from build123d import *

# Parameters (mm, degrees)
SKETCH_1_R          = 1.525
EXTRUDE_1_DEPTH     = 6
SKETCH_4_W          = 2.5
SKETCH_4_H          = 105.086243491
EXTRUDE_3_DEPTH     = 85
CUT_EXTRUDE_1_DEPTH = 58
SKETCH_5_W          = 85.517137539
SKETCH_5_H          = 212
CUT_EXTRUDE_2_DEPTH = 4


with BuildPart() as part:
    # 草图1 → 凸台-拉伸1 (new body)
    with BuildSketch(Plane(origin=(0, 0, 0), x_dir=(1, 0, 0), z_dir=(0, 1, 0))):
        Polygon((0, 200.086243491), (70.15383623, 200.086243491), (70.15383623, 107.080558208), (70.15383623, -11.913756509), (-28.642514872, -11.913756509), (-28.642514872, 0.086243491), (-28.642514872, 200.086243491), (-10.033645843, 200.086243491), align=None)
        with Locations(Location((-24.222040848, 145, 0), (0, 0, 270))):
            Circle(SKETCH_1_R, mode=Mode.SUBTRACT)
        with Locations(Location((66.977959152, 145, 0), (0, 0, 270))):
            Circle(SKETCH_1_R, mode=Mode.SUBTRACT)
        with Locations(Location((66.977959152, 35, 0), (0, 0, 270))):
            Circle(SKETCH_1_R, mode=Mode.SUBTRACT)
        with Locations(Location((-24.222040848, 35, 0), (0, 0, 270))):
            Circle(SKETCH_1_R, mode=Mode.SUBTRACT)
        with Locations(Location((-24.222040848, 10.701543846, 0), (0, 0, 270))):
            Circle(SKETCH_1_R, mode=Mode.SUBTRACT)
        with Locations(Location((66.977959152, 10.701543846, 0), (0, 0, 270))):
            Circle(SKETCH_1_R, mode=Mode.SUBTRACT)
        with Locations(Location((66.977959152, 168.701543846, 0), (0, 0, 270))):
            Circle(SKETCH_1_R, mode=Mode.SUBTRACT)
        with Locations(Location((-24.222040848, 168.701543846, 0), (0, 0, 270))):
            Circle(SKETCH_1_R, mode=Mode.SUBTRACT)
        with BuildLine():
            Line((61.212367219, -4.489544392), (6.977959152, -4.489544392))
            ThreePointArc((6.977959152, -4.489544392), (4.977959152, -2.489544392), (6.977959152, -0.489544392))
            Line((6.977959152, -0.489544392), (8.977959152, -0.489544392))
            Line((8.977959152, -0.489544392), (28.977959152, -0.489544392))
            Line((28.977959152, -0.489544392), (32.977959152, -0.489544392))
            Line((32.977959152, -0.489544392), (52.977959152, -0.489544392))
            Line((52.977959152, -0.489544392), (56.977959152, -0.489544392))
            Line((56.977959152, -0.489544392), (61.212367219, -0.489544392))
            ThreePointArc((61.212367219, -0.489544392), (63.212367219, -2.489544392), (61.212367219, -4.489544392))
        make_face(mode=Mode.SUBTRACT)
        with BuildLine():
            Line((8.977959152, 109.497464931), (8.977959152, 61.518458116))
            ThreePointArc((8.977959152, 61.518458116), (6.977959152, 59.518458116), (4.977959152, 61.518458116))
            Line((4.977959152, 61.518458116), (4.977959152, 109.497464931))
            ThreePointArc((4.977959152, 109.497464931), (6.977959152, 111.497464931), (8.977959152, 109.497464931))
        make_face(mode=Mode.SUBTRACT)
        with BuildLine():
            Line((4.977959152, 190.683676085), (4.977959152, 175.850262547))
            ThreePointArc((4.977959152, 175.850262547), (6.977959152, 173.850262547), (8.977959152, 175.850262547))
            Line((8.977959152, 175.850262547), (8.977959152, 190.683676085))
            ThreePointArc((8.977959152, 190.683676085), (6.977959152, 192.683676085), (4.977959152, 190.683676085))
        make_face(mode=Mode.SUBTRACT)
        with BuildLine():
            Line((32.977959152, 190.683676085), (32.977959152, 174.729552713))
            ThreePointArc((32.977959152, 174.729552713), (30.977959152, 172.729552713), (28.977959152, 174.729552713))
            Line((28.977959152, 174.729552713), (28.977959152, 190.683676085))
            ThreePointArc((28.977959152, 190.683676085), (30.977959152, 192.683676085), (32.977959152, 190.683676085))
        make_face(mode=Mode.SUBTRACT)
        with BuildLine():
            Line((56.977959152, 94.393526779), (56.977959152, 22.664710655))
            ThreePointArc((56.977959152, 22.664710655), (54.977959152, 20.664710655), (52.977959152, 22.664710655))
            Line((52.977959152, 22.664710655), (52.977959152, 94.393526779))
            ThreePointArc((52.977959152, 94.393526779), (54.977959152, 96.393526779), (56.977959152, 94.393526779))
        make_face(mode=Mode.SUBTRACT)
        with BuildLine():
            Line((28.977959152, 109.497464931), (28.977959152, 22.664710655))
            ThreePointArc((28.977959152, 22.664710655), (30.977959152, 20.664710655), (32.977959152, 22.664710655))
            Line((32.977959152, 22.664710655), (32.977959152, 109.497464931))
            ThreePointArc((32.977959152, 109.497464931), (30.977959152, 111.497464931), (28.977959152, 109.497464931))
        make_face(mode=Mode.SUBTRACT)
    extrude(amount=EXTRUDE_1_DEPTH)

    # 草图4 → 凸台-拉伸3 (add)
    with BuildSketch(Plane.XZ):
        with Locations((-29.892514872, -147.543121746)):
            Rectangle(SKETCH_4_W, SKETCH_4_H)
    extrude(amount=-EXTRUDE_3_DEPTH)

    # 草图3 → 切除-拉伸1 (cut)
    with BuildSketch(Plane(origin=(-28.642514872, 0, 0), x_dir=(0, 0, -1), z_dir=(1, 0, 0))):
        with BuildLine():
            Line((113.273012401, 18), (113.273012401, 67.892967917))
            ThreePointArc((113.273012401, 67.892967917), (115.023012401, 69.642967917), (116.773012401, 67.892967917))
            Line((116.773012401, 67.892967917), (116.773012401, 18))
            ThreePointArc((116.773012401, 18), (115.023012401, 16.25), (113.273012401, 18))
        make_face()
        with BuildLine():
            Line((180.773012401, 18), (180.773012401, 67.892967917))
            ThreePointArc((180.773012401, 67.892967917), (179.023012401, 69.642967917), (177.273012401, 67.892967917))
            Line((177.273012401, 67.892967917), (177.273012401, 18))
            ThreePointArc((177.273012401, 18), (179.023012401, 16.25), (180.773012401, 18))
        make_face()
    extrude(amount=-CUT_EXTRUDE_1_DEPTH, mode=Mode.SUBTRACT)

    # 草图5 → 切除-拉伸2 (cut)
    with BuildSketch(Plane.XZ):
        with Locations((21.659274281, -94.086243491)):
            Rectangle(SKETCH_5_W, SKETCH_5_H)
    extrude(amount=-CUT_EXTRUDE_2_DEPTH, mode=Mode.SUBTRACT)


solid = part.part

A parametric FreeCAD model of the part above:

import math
import FreeCAD as App
import Part
import Sketcher
from FreeCAD import Vector
Q = App.Units.Quantity

doc = App.newDocument("Part")
body = doc.addObject("PartDesign::Body", "Body")

# Sketch on XZ plane
sketch1 = doc.addObject("Sketcher::SketchObject", "Sketch")
body.addObject(sketch1)
sketch1.AttachmentSupport = (doc.XZ_Plane, [""])
sketch1.MapMode = "FlatFace"
sketch1.addGeometry(Part.LineSegment(Vector(70.2, -200.1, 0), Vector(-28.6, -200.1, 0)), False)
sketch1.addGeometry(Part.LineSegment(Vector(-28.6, -200.1, 0), Vector(-28.6, 11.9, 0)), False)
sketch1.addGeometry(Part.LineSegment(Vector(-28.6, 11.9, 0), Vector(70.2, 11.9, 0)), False)
sketch1.addGeometry(Part.LineSegment(Vector(70.2, 11.9, 0), Vector(70.2, -200.1, 0)), False)
sketch1.addGeometry(Part.Circle(Vector(67, -10.7, 0), Vector(0, 0, 1), 1.5), False)
sketch1.addGeometry(Part.Circle(Vector(67, -35, 0), Vector(0, 0, 1), 1.5), False)
sketch1.addGeometry(Part.LineSegment(Vector(61.2, 4.5, 0), Vector(7, 4.5, 0)), False)
sketch1.addGeometry(Part.ArcOfCircle(Part.Circle(Vector(7, 2.5, 0), Vector(0, 0, 1), 2), math.radians(90), math.radians(270)), False)
sketch1.addGeometry(Part.LineSegment(Vector(7, 0.5, 0), Vector(61.2, 0.5, 0)), False)
sketch1.addGeometry(Part.ArcOfCircle(Part.Circle(Vector(61.2, 2.5, 0), Vector(0, 0, 1), 2), math.radians(-90), math.radians(90)), False)
sketch1.addGeometry(Part.LineSegment(Vector(57, -94.4, 0), Vector(57, -22.7, 0)), False)
sketch1.addGeometry(Part.ArcOfCircle(Part.Circle(Vector(55, -22.7, 0), Vector(0, 0, 1), 2), math.radians(0), math.radians(180)), False)
sketch1.addGeometry(Part.LineSegment(Vector(53, -22.7, 0), Vector(53, -94.4, 0)), False)
sketch1.addGeometry(Part.ArcOfCircle(Part.Circle(Vector(55, -94.4, 0), Vector(0, 0, 1), 2), math.radians(180), math.radians(360)), False)
sketch1.addGeometry(Part.ArcOfCircle(Part.Circle(Vector(31, -109.5, 0), Vector(0, 0, 1), 2), math.radians(180), math.radians(360)), False)
sketch1.addGeometry(Part.LineSegment(Vector(33, -109.5, 0), Vector(33, -22.7, 0)), False)
sketch1.addGeometry(Part.ArcOfCircle(Part.Circle(Vector(31, -22.7, 0), Vector(0, 0, 1), 2), math.radians(0), math.radians(180)), False)
sketch1.addGeometry(Part.LineSegment(Vector(29, -22.7, 0), Vector(29, -109.5, 0)), False)
sketch1.addGeometry(Part.Circle(Vector(-24.2, -10.7, 0), Vector(0, 0, 1), 1.5), False)
sketch1.addGeometry(Part.Circle(Vector(-24.2, -35, 0), Vector(0, 0, 1), 1.5), False)
sketch1.addGeometry(Part.LineSegment(Vector(9, -109.5, 0), Vector(9, -61.5, 0)), False)
sketch1.addGeometry(Part.ArcOfCircle(Part.Circle(Vector(7, -61.5, 0), Vector(0, 0, 1), 2), math.radians(0), math.radians(180)), False)
sketch1.addGeometry(Part.LineSegment(Vector(5, -61.5, 0), Vector(5, -109.5, 0)), False)
sketch1.addGeometry(Part.ArcOfCircle(Part.Circle(Vector(7, -109.5, 0), Vector(0, 0, 1), 2), math.radians(180), math.radians(360)), False)
sketch1.addGeometry(Part.Circle(Vector(67, -145, 0), Vector(0, 0, 1), 1.5), False)
sketch1.addGeometry(Part.Circle(Vector(67, -168.7, 0), Vector(0, 0, 1), 1.5), False)
sketch1.addGeometry(Part.LineSegment(Vector(33, -190.7, 0), Vector(33, -174.7, 0)), False)
sketch1.addGeometry(Part.ArcOfCircle(Part.Circle(Vector(31, -174.7, 0), Vector(0, 0, 1), 2), math.radians(0), math.radians(180)), False)
sketch1.addGeometry(Part.LineSegment(Vector(29, -174.7, 0), Vector(29, -190.7, 0)), False)
sketch1.addGeometry(Part.ArcOfCircle(Part.Circle(Vector(31, -190.7, 0), Vector(0, 0, 1), 2), math.radians(180), math.radians(360)), False)
sketch1.addGeometry(Part.ArcOfCircle(Part.Circle(Vector(7, -190.7, 0), Vector(0, 0, 1), 2), math.radians(180), math.radians(360)), False)
sketch1.addGeometry(Part.LineSegment(Vector(9, -190.7, 0), Vector(9, -175.9, 0)), False)
sketch1.addGeometry(Part.ArcOfCircle(Part.Circle(Vector(7, -175.9, 0), Vector(0, 0, 1), 2), math.radians(0), math.radians(180)), False)
sketch1.addGeometry(Part.LineSegment(Vector(5, -175.9, 0), Vector(5, -190.7, 0)), False)
sketch1.addGeometry(Part.Circle(Vector(-24.2, -145, 0), Vector(0, 0, 1), 1.5), False)
sketch1.addGeometry(Part.Circle(Vector(-24.2, -168.7, 0), Vector(0, 0, 1), 1.5), False)
sketch1.addConstraint(Sketcher.Constraint("Coincident", 0, 2, 1, 1))
sketch1.addConstraint(Sketcher.Constraint("Coincident", 1, 2, 2, 1))
sketch1.addConstraint(Sketcher.Constraint("Coincident", 2, 2, 3, 1))
sketch1.addConstraint(Sketcher.Constraint("Coincident", 3, 2, 0, 1))
sketch1.addConstraint(Sketcher.Constraint("Tangent", 6, 2, 7, 1))
sketch1.addConstraint(Sketcher.Constraint("Tangent", 7, 2, 8, 1))
sketch1.addConstraint(Sketcher.Constraint("Tangent", 8, 2, 9, 1))
sketch1.addConstraint(Sketcher.Constraint("Tangent", 9, 2, 6, 1))
sketch1.addConstraint(Sketcher.Constraint("Tangent", 10, 2, 11, 1))
sketch1.addConstraint(Sketcher.Constraint("Tangent", 11, 2, 12, 1))
sketch1.addConstraint(Sketcher.Constraint("Tangent", 12, 2, 13, 1))
sketch1.addConstraint(Sketcher.Constraint("Tangent", 13, 2, 10, 1))
sketch1.addConstraint(Sketcher.Constraint("Tangent", 14, 2, 15, 1))
sketch1.addConstraint(Sketcher.Constraint("Tangent", 15, 2, 16, 1))
sketch1.addConstraint(Sketcher.Constraint("Tangent", 16, 2, 17, 1))
sketch1.addConstraint(Sketcher.Constraint("Tangent", 17, 2, 14, 1))
sketch1.addConstraint(Sketcher.Constraint("Tangent", 20, 2, 21, 1))
sketch1.addConstraint(Sketcher.Constraint("Tangent", 21, 2, 22, 1))
sketch1.addConstraint(Sketcher.Constraint("Tangent", 22, 2, 23, 1))
sketch1.addConstraint(Sketcher.Constraint("Tangent", 23, 2, 20, 1))
sketch1.addConstraint(Sketcher.Constraint("Tangent", 26, 2, 27, 1))
sketch1.addConstraint(Sketcher.Constraint("Tangent", 27, 2, 28, 1))
sketch1.addConstraint(Sketcher.Constraint("Tangent", 28, 2, 29, 1))
sketch1.addConstraint(Sketcher.Constraint("Tangent", 29, 2, 26, 1))
sketch1.addConstraint(Sketcher.Constraint("Tangent", 30, 2, 31, 1))
sketch1.addConstraint(Sketcher.Constraint("Tangent", 31, 2, 32, 1))
sketch1.addConstraint(Sketcher.Constraint("Tangent", 32, 2, 33, 1))
sketch1.addConstraint(Sketcher.Constraint("Tangent", 33, 2, 30, 1))
sketch1.addConstraint(Sketcher.Constraint("Horizontal", 0))
sketch1.addConstraint(Sketcher.Constraint("Vertical", 1))
sketch1.addConstraint(Sketcher.Constraint("Horizontal", 2))
sketch1.addConstraint(Sketcher.Constraint("Vertical", 3))
sketch1.addConstraint(Sketcher.Constraint("Horizontal", 6))
sketch1.addConstraint(Sketcher.Constraint("Horizontal", 8))
sketch1.addConstraint(Sketcher.Constraint("Vertical", 10))
sketch1.addConstraint(Sketcher.Constraint("Vertical", 12))
sketch1.addConstraint(Sketcher.Constraint("Vertical", 15))
sketch1.addConstraint(Sketcher.Constraint("Vertical", 17))
sketch1.addConstraint(Sketcher.Constraint("Vertical", 20))
sketch1.addConstraint(Sketcher.Constraint("Vertical", 22))
sketch1.addConstraint(Sketcher.Constraint("Vertical", 26))
sketch1.addConstraint(Sketcher.Constraint("Vertical", 28))
sketch1.addConstraint(Sketcher.Constraint("Vertical", 31))
sketch1.addConstraint(Sketcher.Constraint("Vertical", 33))
sketch1.addConstraint(Sketcher.Constraint("Equal", 4, 5))
sketch1.addConstraint(Sketcher.Constraint("Equal", 9, 11))
sketch1.addConstraint(Sketcher.Constraint("Equal", 13, 14))
sketch1.addConstraint(Sketcher.Constraint("Equal", 5, 18))
sketch1.addConstraint(Sketcher.Constraint("Equal", 18, 19))
sketch1.addConstraint(Sketcher.Constraint("Equal", 16, 21))
sketch1.addConstraint(Sketcher.Constraint("Equal", 19, 24))
sketch1.addConstraint(Sketcher.Constraint("Equal", 24, 25))
sketch1.addConstraint(Sketcher.Constraint("Equal", 23, 27))
sketch1.addConstraint(Sketcher.Constraint("Equal", 29, 30))
sketch1.addConstraint(Sketcher.Constraint("Equal", 25, 34))
sketch1.addConstraint(Sketcher.Constraint("Equal", 34, 35))
sketch1.addConstraint(Sketcher.Constraint("Horizontal", 11, 3, 16, 3))
sketch1.addConstraint(Sketcher.Constraint("Horizontal", 4, 3, 18, 3))
sketch1.addConstraint(Sketcher.Constraint("Horizontal", 5, 3, 19, 3))
sketch1.addConstraint(Sketcher.Constraint("Horizontal", 14, 3, 23, 3))
sketch1.addConstraint(Sketcher.Constraint("Horizontal", 29, 3, 30, 3))
sketch1.addConstraint(Sketcher.Constraint("Horizontal", 24, 3, 34, 3))
sketch1.addConstraint(Sketcher.Constraint("Horizontal", 25, 3, 35, 3))
sketch1.addConstraint(Sketcher.Constraint("Vertical", 4, 3, 5, 3))
sketch1.addConstraint(Sketcher.Constraint("Vertical", 18, 3, 19, 3))
sketch1.addConstraint(Sketcher.Constraint("Vertical", 7, 3, 21, 3))
sketch1.addConstraint(Sketcher.Constraint("Vertical", 5, 3, 24, 3))
sketch1.addConstraint(Sketcher.Constraint("Vertical", 24, 3, 25, 3))
sketch1.addConstraint(Sketcher.Constraint("Vertical", 16, 3, 27, 3))
sketch1.addConstraint(Sketcher.Constraint("Vertical", 23, 3, 30, 3))
sketch1.addConstraint(Sketcher.Constraint("Vertical", 19, 3, 34, 3))
sketch1.addConstraint(Sketcher.Constraint("Vertical", 34, 3, 35, 3))
sketch1.addConstraint(Sketcher.Constraint("Radius", 7, Q("2 mm")))
sketch1.addConstraint(Sketcher.Constraint("Diameter", 4, Q("3.05 mm")))
sketch1.addConstraint(Sketcher.Constraint("DistanceY", 1, 1, 1, 2, Q("212 mm")))
sketch1.addConstraint(Sketcher.Constraint("DistanceY", 5, 3, -1, 1, Q("35 mm")))
sketch1.addConstraint(Sketcher.Constraint("DistanceY", 24, 3, -1, 1, Q("145 mm")))
sketch1.addConstraint(Sketcher.Constraint("DistanceX", 7, 3, 4, 3, Q("60 mm")))
sketch1.addConstraint(Sketcher.Constraint("DistanceX", 11, 3, 4, 3, Q("12 mm")))
sketch1.addConstraint(Sketcher.Constraint("DistanceX", 14, 3, 13, 3, Q("24 mm")))
sketch1.addConstraint(Sketcher.Constraint("DistanceX", 18, 3, 7, 3, Q("31.2 mm")))
sketch1.addConstraint(Sketcher.Constraint("DistanceX", 0, 2, 0, 1, Q("98.796351 mm")))
sketch1.addConstraint(Sketcher.Constraint("DistanceX", 6, 2, 6, 1, Q("54.234408 mm")))
sketch1.addConstraint(Sketcher.Constraint("DistanceY", 0, 2, 35, 3, Q("31.3847 mm")))
sketch1.addConstraint(Sketcher.Constraint("DistanceY", 18, 3, 1, 2, Q("22.6153 mm")))
sketch1.addConstraint(Sketcher.Constraint("DistanceY", 10, 1, 10, 2, Q("71.728816 mm")))
sketch1.addConstraint(Sketcher.Constraint("DistanceY", 15, 1, 15, 2, Q("86.832754 mm")))
sketch1.addConstraint(Sketcher.Constraint("DistanceY", 20, 1, 20, 2, Q("47.979007 mm")))
sketch1.addConstraint(Sketcher.Constraint("DistanceY", 26, 1, 26, 2, Q("15.954123 mm")))
sketch1.addConstraint(Sketcher.Constraint("DistanceY", 31, 1, 31, 2, Q("14.833414 mm")))
sketch1.addConstraint(Sketcher.Constraint("DistanceX", -1, 1, 4, 3, Q("66.977959 mm")))
sketch1.addConstraint(Sketcher.Constraint("DistanceY", 11, 3, -1, 1, Q("22.664711 mm")))
sketch1.addConstraint(Sketcher.Constraint("DistanceY", 4, 3, 7, 3, Q("13.191088 mm")))
sketch1.addConstraint(Sketcher.Constraint("DistanceY", 13, 3, 9, 3, Q("96.883071 mm")))
sketch1.addConstraint(Sketcher.Constraint("DistanceY", 27, 3, 25, 3, Q("6.028009 mm")))
sketch1.addConstraint(Sketcher.Constraint("DistanceX", 9, 3, 2, 2, Q("8.941469 mm")))
pad1 = doc.addObject("PartDesign::Pad", "Pad")
body.addObject(pad1)
pad1.Profile = sketch1
pad1.Length = 6
pad1.Reversed = True

# Sketch on XZ plane
sketch2 = doc.addObject("Sketcher::SketchObject", "Sketch001")
body.addObject(sketch2)
sketch2.AttachmentSupport = (doc.XZ_Plane, [""])
sketch2.MapMode = "FlatFace"
sketch2.addGeometry(Part.LineSegment(Vector(-31.1, -95, 0), Vector(-31.1, -200.1, 0)), False)
sketch2.addGeometry(Part.LineSegment(Vector(-31.1, -200.1, 0), Vector(-28.6, -200.1, 0)), False)
sketch2.addGeometry(Part.LineSegment(Vector(-28.6, -200.1, 0), Vector(-28.6, -95, 0)), False)
sketch2.addGeometry(Part.LineSegment(Vector(-28.6, -95, 0), Vector(-31.1, -95, 0)), False)
sketch2.addConstraint(Sketcher.Constraint("Coincident", 0, 2, 1, 1))
sketch2.addConstraint(Sketcher.Constraint("Coincident", 1, 2, 2, 1))
sketch2.addConstraint(Sketcher.Constraint("Coincident", 2, 2, 3, 1))
sketch2.addConstraint(Sketcher.Constraint("Coincident", 3, 2, 0, 1))
sketch2.addConstraint(Sketcher.Constraint("Vertical", 0))
sketch2.addConstraint(Sketcher.Constraint("Horizontal", 1))
sketch2.addConstraint(Sketcher.Constraint("Vertical", 2))
sketch2.addConstraint(Sketcher.Constraint("Horizontal", 3))
sketch2.addConstraint(Sketcher.Constraint("DistanceX", 1, 1, 1, 2, Q("2.5 mm")))
sketch2.addConstraint(Sketcher.Constraint("DistanceY", 2, 2, -1, 1, Q("95 mm")))
sketch2.addConstraint(Sketcher.Constraint("DistanceY", 0, 2, 0, 1, Q("105.086243 mm")))
sketch2.addConstraint(Sketcher.Constraint("DistanceX", 0, 2, -1, 1, Q("31.142515 mm")))
pad2 = doc.addObject("PartDesign::Pad", "Pad001")
body.addObject(pad2)
pad2.Profile = sketch2
pad2.Length = 85
pad2.Reversed = True

# Sketch on YZ plane
sketch3 = doc.addObject("Sketcher::SketchObject", "Sketch002")
body.addObject(sketch3)
sketch3.AttachmentSupport = (doc.YZ_Plane, [""])
sketch3.MapMode = "FlatFace"
sketch3.AttachmentOffset = App.Placement(Vector(0, 0, -28.642515), App.Rotation())
sketch3.addGeometry(Part.LineSegment(Vector(67.9, -113.3, 0), Vector(18, -113.3, 0)), False)
sketch3.addGeometry(Part.ArcOfCircle(Part.Circle(Vector(18, -115, 0), Vector(0, 0, 1), 1.8), math.radians(90), math.radians(270)), False)
sketch3.addGeometry(Part.LineSegment(Vector(18, -116.8, 0), Vector(67.9, -116.8, 0)), False)
sketch3.addGeometry(Part.ArcOfCircle(Part.Circle(Vector(67.9, -115, 0), Vector(0, 0, 1), 1.8), math.radians(-90), math.radians(90)), False)
sketch3.addGeometry(Part.LineSegment(Vector(18, -180.8, 0), Vector(67.9, -180.8, 0)), False)
sketch3.addGeometry(Part.ArcOfCircle(Part.Circle(Vector(67.9, -179, 0), Vector(0, 0, 1), 1.8), math.radians(-90), math.radians(90)), False)
sketch3.addGeometry(Part.LineSegment(Vector(67.9, -177.3, 0), Vector(18, -177.3, 0)), False)
sketch3.addGeometry(Part.ArcOfCircle(Part.Circle(Vector(18, -179, 0), Vector(0, 0, 1), 1.8), math.radians(90), math.radians(270)), False)
sketch3.addConstraint(Sketcher.Constraint("Tangent", 0, 2, 1, 1))
sketch3.addConstraint(Sketcher.Constraint("Tangent", 1, 2, 2, 1))
sketch3.addConstraint(Sketcher.Constraint("Tangent", 2, 2, 3, 1))
sketch3.addConstraint(Sketcher.Constraint("Tangent", 3, 2, 0, 1))
sketch3.addConstraint(Sketcher.Constraint("Tangent", 4, 2, 5, 1))
sketch3.addConstraint(Sketcher.Constraint("Tangent", 5, 2, 6, 1))
sketch3.addConstraint(Sketcher.Constraint("Tangent", 6, 2, 7, 1))
sketch3.addConstraint(Sketcher.Constraint("Tangent", 7, 2, 4, 1))
sketch3.addConstraint(Sketcher.Constraint("Horizontal", 0))
sketch3.addConstraint(Sketcher.Constraint("Horizontal", 2))
sketch3.addConstraint(Sketcher.Constraint("Horizontal", 4))
sketch3.addConstraint(Sketcher.Constraint("Horizontal", 6))
sketch3.addConstraint(Sketcher.Constraint("Equal", 3, 5))
sketch3.addConstraint(Sketcher.Constraint("Vertical", 3, 3, 5, 3))
sketch3.addConstraint(Sketcher.Constraint("Vertical", 1, 3, 7, 3))
sketch3.addConstraint(Sketcher.Constraint("Radius", 1, Q("1.75 mm")))
sketch3.addConstraint(Sketcher.Constraint("DistanceX", -1, 1, 1, 3, Q("18 mm")))
sketch3.addConstraint(Sketcher.Constraint("DistanceY", 5, 3, 3, 3, Q("64 mm")))
sketch3.addConstraint(Sketcher.Constraint("DistanceX", 0, 2, 0, 1, Q("49.892968 mm")))
sketch3.addConstraint(Sketcher.Constraint("DistanceY", 1, 3, -1, 1, Q("115.023012 mm")))
pocket1 = doc.addObject("PartDesign::Pocket", "Pocket")
body.addObject(pocket1)
pocket1.Profile = sketch3
pocket1.Length = 58

# Sketch on XZ plane
sketch4 = doc.addObject("Sketcher::SketchObject", "Sketch003")
body.addObject(sketch4)
sketch4.AttachmentSupport = (doc.XZ_Plane, [""])
sketch4.MapMode = "FlatFace"
sketch4.addGeometry(Part.LineSegment(Vector(-21, 12, 0), Vector(-21, -200, 0)), False)
sketch4.addGeometry(Part.LineSegment(Vector(-21, -200, 0), Vector(64, -200, 0)), False)
sketch4.addGeometry(Part.LineSegment(Vector(64, -200, 0), Vector(64, 12, 0)), False)
sketch4.addGeometry(Part.LineSegment(Vector(64, 12, 0), Vector(-21, 12, 0)), False)
sketch4.addConstraint(Sketcher.Constraint("Coincident", 0, 2, 1, 1))
sketch4.addConstraint(Sketcher.Constraint("Coincident", 1, 2, 2, 1))
sketch4.addConstraint(Sketcher.Constraint("Coincident", 2, 2, 3, 1))
sketch4.addConstraint(Sketcher.Constraint("Coincident", 3, 2, 0, 1))
sketch4.addConstraint(Sketcher.Constraint("Vertical", 0))
sketch4.addConstraint(Sketcher.Constraint("Horizontal", 1))
sketch4.addConstraint(Sketcher.Constraint("Vertical", 2))
sketch4.addConstraint(Sketcher.Constraint("Horizontal", 3))
sketch4.addConstraint(Sketcher.Constraint("DistanceY", 0, 2, 0, 1, Q("212 mm")))
sketch4.addConstraint(Sketcher.Constraint("DistanceX", 1, 1, 1, 2, Q("85.517138 mm")))
sketch4.addConstraint(Sketcher.Constraint("DistanceX", 0, 2, -1, 1, Q("21.099294 mm")))
sketch4.addConstraint(Sketcher.Constraint("DistanceY", 0, 2, -1, 1, Q("200.086243 mm")))
pocket2 = doc.addObject("PartDesign::Pocket", "Pocket001")
body.addObject(pocket2)
pocket2.Profile = sketch4
pocket2.Length = 4

doc.recompute()
